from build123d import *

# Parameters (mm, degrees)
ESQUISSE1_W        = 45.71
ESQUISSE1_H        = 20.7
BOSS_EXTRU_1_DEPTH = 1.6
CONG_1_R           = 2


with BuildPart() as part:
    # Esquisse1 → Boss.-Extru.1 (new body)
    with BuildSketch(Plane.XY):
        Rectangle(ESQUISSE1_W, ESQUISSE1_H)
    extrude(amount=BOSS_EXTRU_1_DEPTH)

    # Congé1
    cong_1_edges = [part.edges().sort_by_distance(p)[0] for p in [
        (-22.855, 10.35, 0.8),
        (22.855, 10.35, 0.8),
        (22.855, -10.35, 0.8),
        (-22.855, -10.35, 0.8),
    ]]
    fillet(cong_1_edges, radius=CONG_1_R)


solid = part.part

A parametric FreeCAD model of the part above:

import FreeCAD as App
import Part
import Sketcher
from FreeCAD import Vector
Q = App.Units.Quantity


def edges_at(feature, points):
    """Names of the edges that pass closest to the given points."""
    edges = feature.Shape.Edges
    near = lambda p: min(range(len(edges)), key=lambda i: edges[i].distToShape(Part.Vertex(*p))[0])
    return sorted({f"Edge{near(p) + 1}" for p in points})


def add_polygon(sketch, points):
    """Adds a closed chain of lines whose ends are joined by coincident constraints."""
    first, n = sketch.GeometryCount, len(points)
    for a, b in zip(points, points[1:] + points[:1]):
        sketch.addGeometry(Part.LineSegment(App.Vector(*a, 0), App.Vector(*b, 0)), False)
    for i in range(n):
        sketch.addConstraint(Sketcher.Constraint("Coincident", first + i, 2, first + (i + 1) % n, 1))

doc = App.newDocument("Part")
body = doc.addObject("PartDesign::Body", "Body")

# Sketch on XY plane
sketch1 = doc.addObject("Sketcher::SketchObject", "Sketch")
body.addObject(sketch1)
sketch1.AttachmentSupport = (doc.XY_Plane, [""])
sketch1.MapMode = "FlatFace"
add_polygon(sketch1, [(-22.855, 10.35), (-22.855, -10.35), (22.855, -10.35), (22.855, 10.35)])  # lines 0-3
sketch1.addConstraint([
    Sketcher.Constraint("Vertical", 0),
    Sketcher.Constraint("Horizontal", 1),
    Sketcher.Constraint("Vertical", 2),
    Sketcher.Constraint("Horizontal", 3),
    Sketcher.Constraint("Symmetric", 0, 2, 2, 2, -1, 1),
    Sketcher.Constraint("DistanceY", 0, 2, 0, 1, Q("20.7 mm")),
    Sketcher.Constraint("DistanceX", 1, 1, 1, 2, Q("45.71 mm")),
])
pad1 = doc.addObject("PartDesign::Pad", "Pad")
body.addObject(pad1)
pad1.Profile = sketch1
pad1.Length = 1.6
doc.recompute()

fillet = doc.addObject("PartDesign::Fillet", "Fillet")
body.addObject(fillet)
fillet.Base = (pad1, edges_at(pad1, [
    (-22.855, 10.35, 0.8),
    (22.855, 10.35, 0.8),
    (22.855, -10.35, 0.8),
    (-22.855, -10.35, 0.8),
]))
fillet.Radius = 2

doc.recompute()
